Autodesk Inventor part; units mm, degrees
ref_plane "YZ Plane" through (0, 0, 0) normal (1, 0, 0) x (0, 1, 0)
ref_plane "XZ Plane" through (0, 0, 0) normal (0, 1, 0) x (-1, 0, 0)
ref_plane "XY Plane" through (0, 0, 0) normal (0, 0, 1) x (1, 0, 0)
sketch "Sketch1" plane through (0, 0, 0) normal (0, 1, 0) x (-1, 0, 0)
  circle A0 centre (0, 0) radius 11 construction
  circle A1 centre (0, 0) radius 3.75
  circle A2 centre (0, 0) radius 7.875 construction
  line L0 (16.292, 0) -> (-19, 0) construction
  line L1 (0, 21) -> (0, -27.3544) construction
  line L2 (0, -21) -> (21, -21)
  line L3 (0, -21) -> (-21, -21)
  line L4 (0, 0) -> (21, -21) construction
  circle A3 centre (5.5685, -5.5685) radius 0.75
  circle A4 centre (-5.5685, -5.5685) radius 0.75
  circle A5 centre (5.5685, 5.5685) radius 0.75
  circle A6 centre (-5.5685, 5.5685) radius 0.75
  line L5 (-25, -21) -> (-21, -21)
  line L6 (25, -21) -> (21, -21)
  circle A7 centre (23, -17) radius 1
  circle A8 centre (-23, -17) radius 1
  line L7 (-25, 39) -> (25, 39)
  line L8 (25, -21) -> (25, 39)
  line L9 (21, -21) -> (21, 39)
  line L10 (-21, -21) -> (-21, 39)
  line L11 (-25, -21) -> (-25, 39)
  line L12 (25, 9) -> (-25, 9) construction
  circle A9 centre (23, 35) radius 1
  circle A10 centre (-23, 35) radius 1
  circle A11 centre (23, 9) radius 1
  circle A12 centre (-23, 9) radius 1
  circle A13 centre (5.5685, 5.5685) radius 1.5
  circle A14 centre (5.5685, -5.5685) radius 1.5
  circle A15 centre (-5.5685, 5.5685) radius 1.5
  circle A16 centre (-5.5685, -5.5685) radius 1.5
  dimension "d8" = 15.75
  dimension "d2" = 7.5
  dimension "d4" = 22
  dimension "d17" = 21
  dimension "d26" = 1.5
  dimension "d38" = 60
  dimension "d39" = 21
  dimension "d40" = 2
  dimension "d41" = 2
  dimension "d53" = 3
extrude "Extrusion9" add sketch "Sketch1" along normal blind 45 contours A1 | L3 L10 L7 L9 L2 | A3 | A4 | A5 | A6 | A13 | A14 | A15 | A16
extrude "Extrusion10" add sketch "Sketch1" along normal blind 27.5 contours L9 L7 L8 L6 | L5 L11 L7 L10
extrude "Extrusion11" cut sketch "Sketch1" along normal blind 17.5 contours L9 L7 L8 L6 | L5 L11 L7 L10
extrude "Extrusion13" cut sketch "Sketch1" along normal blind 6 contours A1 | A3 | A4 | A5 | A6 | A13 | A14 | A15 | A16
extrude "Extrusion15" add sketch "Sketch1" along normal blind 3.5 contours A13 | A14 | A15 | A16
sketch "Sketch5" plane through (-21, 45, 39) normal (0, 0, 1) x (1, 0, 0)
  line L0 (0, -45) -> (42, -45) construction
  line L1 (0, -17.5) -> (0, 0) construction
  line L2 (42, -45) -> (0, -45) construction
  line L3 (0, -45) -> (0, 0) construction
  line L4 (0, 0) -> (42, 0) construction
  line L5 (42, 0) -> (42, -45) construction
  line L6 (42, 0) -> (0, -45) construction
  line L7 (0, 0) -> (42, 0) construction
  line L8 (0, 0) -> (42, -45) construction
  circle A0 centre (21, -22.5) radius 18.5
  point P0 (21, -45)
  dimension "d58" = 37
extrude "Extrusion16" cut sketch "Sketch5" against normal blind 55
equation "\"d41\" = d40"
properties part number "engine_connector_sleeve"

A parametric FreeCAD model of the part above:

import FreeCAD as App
import Part
import Sketcher
Q = App.Units.Quantity


def add_polygon(sketch, points):
    """Adds a closed chain of lines whose ends are joined by coincident constraints."""
    first, n = sketch.GeometryCount, len(points)
    for a, b in zip(points, points[1:] + points[:1]):
        sketch.addGeometry(Part.LineSegment(App.Vector(*a, 0), App.Vector(*b, 0)), False)
    for i in range(n):
        sketch.addConstraint(Sketcher.Constraint("Coincident", first + i, 2, first + (i + 1) % n, 1))

doc = App.newDocument("Part")
params = doc.addObject("Spreadsheet::Sheet", "Params")
for row, (alias, value) in enumerate([
    ("sketch1_height", "60 mm"),
    ("pad1_length", "45 mm"),
    ("sketch2_diameter", "2 mm"),
    ("sketch2_height", "60 mm"),
    ("pad2_length", "27.5 mm"),
    ("sketch3_diameter", "2 mm"),
    ("sketch3_height", "60 mm"),
    ("pocket1_length", "17.5 mm"),
    ("sketch4_diameter", "3 mm"),
    ("sketch4_diameter2", "7.5 mm"),
    ("pocket2_length", "6 mm"),
    ("sketch5_diameter", "3 mm"),
    ("sketch5_diameter2", "1.5 mm"),
    ("pad3_length", "3.5 mm"),
    ("sketch6_diameter", "37 mm"),
    ("pocket3_length", "55 mm"),
], start=1):
    params.set(f"A{row}", alias)
    params.set(f"B{row}", "=" + value)
    params.setAlias(f"B{row}", alias)

body = doc.addObject("PartDesign::Body", "Body")

# Sketch on XZ plane
sketch1 = doc.addObject("Sketcher::SketchObject", "Sketch")
body.addObject(sketch1)
sketch1.AttachmentSupport = (doc.XZ_Plane, [""])
sketch1.MapMode = "FlatFace"
add_polygon(sketch1, [(21, -21), (-21, -21), (-21, 39), (21, 39)])  # lines 0-3
sketch1.addConstraint([
    Sketcher.Constraint("Horizontal", 0),
    Sketcher.Constraint("Vertical", 1),
    Sketcher.Constraint("Horizontal", 2),
    Sketcher.Constraint("Vertical", 3),
    Sketcher.Constraint("DistanceY", 1, 1, 1, 2, Q("60 mm")),
    Sketcher.Constraint("DistanceX", 0, 2, -1, 1, Q("21 mm")),
    Sketcher.Constraint("DistanceY", 0, 2, -1, 1, Q("21 mm")),
    Sketcher.Constraint("DistanceX", -1, 1, 2, 2, Q("21 mm")),
])
sketch1.setExpression("Constraints[8]", "Params.sketch1_height")
pad1 = doc.addObject("PartDesign::Pad", "Pad")
body.addObject(pad1)
pad1.Profile = sketch1
pad1.setExpression("Length", "Params.pad1_length")
pad1.Reversed = True

# Sketch on XZ plane
sketch2 = doc.addObject("Sketcher::SketchObject", "Sketch001")
body.addObject(sketch2)
sketch2.AttachmentSupport = (doc.XZ_Plane, [""])
sketch2.MapMode = "FlatFace"
add_polygon(sketch2, [(-21, 39), (-21, -21), (-25, -21), (-25, 39)])  # lines 0-3
sketch2.addGeometry(Part.Circle(App.Vector(-23, -17, 0), App.Vector(0, 0, 1), 1), False)  # 4
sketch2.addGeometry(Part.Circle(App.Vector(-23, 9, 0), App.Vector(0, 0, 1), 1), False)  # 5
sketch2.addGeometry(Part.Circle(App.Vector(-23, 35, 0), App.Vector(0, 0, 1), 1), False)  # 6
add_polygon(sketch2, [(25, -21), (21, -21), (21, 39), (25, 39)])  # lines 7-10
sketch2.addGeometry(Part.Circle(App.Vector(23, -17, 0), App.Vector(0, 0, 1), 1), False)  # 11
sketch2.addGeometry(Part.Circle(App.Vector(23, 9, 0), App.Vector(0, 0, 1), 1), False)  # 12
sketch2.addGeometry(Part.Circle(App.Vector(23, 35, 0), App.Vector(0, 0, 1), 1), False)  # 13
sketch2.addConstraint([
    Sketcher.Constraint("Vertical", 0),
    Sketcher.Constraint("Horizontal", 1),
    Sketcher.Constraint("Vertical", 2),
    Sketcher.Constraint("Horizontal", 3),
    Sketcher.Constraint("Horizontal", 7),
    Sketcher.Constraint("Vertical", 8),
    Sketcher.Constraint("Horizontal", 9),
    Sketcher.Constraint("Vertical", 10),
    Sketcher.Constraint("Equal", 4, 5),
    Sketcher.Constraint("Equal", 5, 6),
    Sketcher.Constraint("Equal", 6, 11),
    Sketcher.Constraint("Equal", 11, 12),
    Sketcher.Constraint("Equal", 12, 13),
    Sketcher.Constraint("Symmetric", 4, 3, 11, 3, -2),
    Sketcher.Constraint("Symmetric", 5, 3, 12, 3, -2),
    Sketcher.Constraint("Symmetric", 6, 3, 13, 3, -2),
    Sketcher.Constraint("Symmetric", 0, 2, 7, 2, -2),
    Sketcher.Constraint("Symmetric", 2, 2, 9, 2, -2),
    Sketcher.Constraint("Vertical", 4, 3, 5, 3),
    Sketcher.Constraint("Vertical", 5, 3, 6, 3),
    Sketcher.Constraint("Diameter", 4, Q("2 mm")),
    Sketcher.Constraint("DistanceY", 0, 2, 0, 1, Q("60 mm")),
    Sketcher.Constraint("DistanceX", 0, 2, -1, 1, Q("21 mm")),
    Sketcher.Constraint("DistanceY", 0, 2, -1, 1, Q("21 mm")),
    Sketcher.Constraint("DistanceX", 4, 3, 0, 2, Q("2 mm")),
    Sketcher.Constraint("DistanceX", 1, 2, 4, 3, Q("2 mm")),
    Sketcher.Constraint("DistanceY", 4, 3, -1, 1, Q("17 mm")),
    Sketcher.Constraint("DistanceY", -1, 1, 5, 3, Q("9 mm")),
    Sketcher.Constraint("DistanceY", -1, 1, 6, 3, Q("35 mm")),
])
sketch2.setExpression("Constraints[28]", "Params.sketch2_diameter")
sketch2.setExpression("Constraints[29]", "Params.sketch2_height")
pad2 = doc.addObject("PartDesign::Pad", "Pad001")
body.addObject(pad2)
pad2.Profile = sketch2
pad2.setExpression("Length", "Params.pad2_length")
pad2.Reversed = True

# Sketch on XZ plane
sketch3 = doc.addObject("Sketcher::SketchObject", "Sketch002")
body.addObject(sketch3)
sketch3.AttachmentSupport = (doc.XZ_Plane, [""])
sketch3.MapMode = "FlatFace"
add_polygon(sketch3, [(-21, 39), (-21, -21), (-25, -21), (-25, 39)])  # lines 0-3
sketch3.addGeometry(Part.Circle(App.Vector(-23, -17, 0), App.Vector(0, 0, 1), 1), False)  # 4
sketch3.addGeometry(Part.Circle(App.Vector(-23, 9, 0), App.Vector(0, 0, 1), 1), False)  # 5
sketch3.addGeometry(Part.Circle(App.Vector(-23, 35, 0), App.Vector(0, 0, 1), 1), False)  # 6
add_polygon(sketch3, [(25, -21), (21, -21), (21, 39), (25, 39)])  # lines 7-10
sketch3.addGeometry(Part.Circle(App.Vector(23, -17, 0), App.Vector(0, 0, 1), 1), False)  # 11
sketch3.addGeometry(Part.Circle(App.Vector(23, 9, 0), App.Vector(0, 0, 1), 1), False)  # 12
sketch3.addGeometry(Part.Circle(App.Vector(23, 35, 0), App.Vector(0, 0, 1), 1), False)  # 13
sketch3.addConstraint([
    Sketcher.Constraint("Vertical", 0),
    Sketcher.Constraint("Horizontal", 1),
    Sketcher.Constraint("Vertical", 2),
    Sketcher.Constraint("Horizontal", 3),
    Sketcher.Constraint("Horizontal", 7),
    Sketcher.Constraint("Vertical", 8),
    Sketcher.Constraint("Horizontal", 9),
    Sketcher.Constraint("Vertical", 10),
    Sketcher.Constraint("Equal", 4, 5),
    Sketcher.Constraint("Equal", 5, 6),
    Sketcher.Constraint("Equal", 6, 11),
    Sketcher.Constraint("Equal", 11, 12),
    Sketcher.Constraint("Equal", 12, 13),
    Sketcher.Constraint("Symmetric", 4, 3, 11, 3, -2),
    Sketcher.Constraint("Symmetric", 5, 3, 12, 3, -2),
    Sketcher.Constraint("Symmetric", 6, 3, 13, 3, -2),
    Sketcher.Constraint("Symmetric", 0, 2, 7, 2, -2),
    Sketcher.Constraint("Symmetric", 2, 2, 9, 2, -2),
    Sketcher.Constraint("Vertical", 4, 3, 5, 3),
    Sketcher.Constraint("Vertical", 5, 3, 6, 3),
    Sketcher.Constraint("Diameter", 4, Q("2 mm")),
    Sketcher.Constraint("DistanceY", 0, 2, 0, 1, Q("60 mm")),
    Sketcher.Constraint("DistanceX", 0, 2, -1, 1, Q("21 mm")),
    Sketcher.Constraint("DistanceY", 0, 2, -1, 1, Q("21 mm")),
    Sketcher.Constraint("DistanceX", 4, 3, 0, 2, Q("2 mm")),
    Sketcher.Constraint("DistanceX", 1, 2, 4, 3, Q("2 mm")),
    Sketcher.Constraint("DistanceY", 4, 3, -1, 1, Q("17 mm")),
    Sketcher.Constraint("DistanceY", -1, 1, 5, 3, Q("9 mm")),
    Sketcher.Constraint("DistanceY", -1, 1, 6, 3, Q("35 mm")),
])
sketch3.setExpression("Constraints[28]", "Params.sketch3_diameter")
sketch3.setExpression("Constraints[29]", "Params.sketch3_height")
pocket1 = doc.addObject("PartDesign::Pocket", "Pocket")
body.addObject(pocket1)
pocket1.Profile = sketch3
pocket1.setExpression("Length", "Params.pocket1_length")

# Sketch on XZ plane
sketch4 = doc.addObject("Sketcher::SketchObject", "Sketch003")
body.addObject(sketch4)
sketch4.AttachmentSupport = (doc.XZ_Plane, [""])
sketch4.MapMode = "FlatFace"
sketch4.addGeometry([
    Part.Circle(App.Vector(0, 0, 0), App.Vector(0, 0, 1), 3.8),  # 0
    Part.Circle(App.Vector(-5.6, -5.6, 0), App.Vector(0, 0, 1), 1.5),  # 1
    Part.Circle(App.Vector(5.6, -5.6, 0), App.Vector(0, 0, 1), 1.5),  # 2
    Part.Circle(App.Vector(-5.6, 5.6, 0), App.Vector(0, 0, 1), 1.5),  # 3
    Part.Circle(App.Vector(5.6, 5.6, 0), App.Vector(0, 0, 1), 1.5),  # 4
], False)
sketch4.addConstraint([
    Sketcher.Constraint("Coincident", 0, 3, -1, 1),
    Sketcher.Constraint("Equal", 1, 2),
    Sketcher.Constraint("Equal", 2, 3),
    Sketcher.Constraint("Equal", 3, 4),
    Sketcher.Constraint("Symmetric", 2, 3, 3, 3, -1, 1),
    Sketcher.Constraint("Symmetric", 1, 3, 4, 3, -1, 1),
    Sketcher.Constraint("Symmetric", 1, 3, 2, 3, -2),
    Sketcher.Constraint("Diameter", 1, Q("3 mm")),
    Sketcher.Constraint("Diameter", 0, Q("7.5 mm")),
    Sketcher.Constraint("DistanceX", 1, 3, 2, 3, Q("11.137 mm")),
    Sketcher.Constraint("DistanceY", 1, 3, 3, 3, Q("11.137 mm")),
])
sketch4.setExpression("Constraints[7]", "Params.sketch4_diameter")
sketch4.setExpression("Constraints[8]", "Params.sketch4_diameter2")
pocket2 = doc.addObject("PartDesign::Pocket", "Pocket001")
body.addObject(pocket2)
pocket2.Profile = sketch4
pocket2.setExpression("Length", "Params.pocket2_length")

# Sketch on XZ plane
sketch5 = doc.addObject("Sketcher::SketchObject", "Sketch004")
body.addObject(sketch5)
sketch5.AttachmentSupport = (doc.XZ_Plane, [""])
sketch5.MapMode = "FlatFace"
sketch5.addGeometry([
    Part.Circle(App.Vector(-5.6, 5.6, 0), App.Vector(0, 0, 1), 1.5),  # 0
    Part.Circle(App.Vector(-5.6, 5.6, 0), App.Vector(0, 0, 1), 0.8),  # 1
    Part.Circle(App.Vector(-5.6, -5.6, 0), App.Vector(0, 0, 1), 1.5),  # 2
    Part.Circle(App.Vector(-5.6, -5.6, 0), App.Vector(0, 0, 1), 0.8),  # 3
    Part.Circle(App.Vector(5.6, 5.6, 0), App.Vector(0, 0, 1), 1.5),  # 4
    Part.Circle(App.Vector(5.6, 5.6, 0), App.Vector(0, 0, 1), 0.8),  # 5
    Part.Circle(App.Vector(5.6, -5.6, 0), App.Vector(0, 0, 1), 1.5),  # 6
    Part.Circle(App.Vector(5.6, -5.6, 0), App.Vector(0, 0, 1), 0.8),  # 7
], False)
sketch5.addConstraint([
    Sketcher.Constraint("Coincident", 1, 3, 0, 3),
    Sketcher.Constraint("Coincident", 3, 3, 2, 3),
    Sketcher.Constraint("Coincident", 5, 3, 4, 3),
    Sketcher.Constraint("Coincident", 7, 3, 6, 3),
    Sketcher.Constraint("Equal", 0, 2),
    Sketcher.Constraint("Equal", 1, 3),
    Sketcher.Constraint("Equal", 2, 4),
    Sketcher.Constraint("Equal", 3, 5),
    Sketcher.Constraint("Equal", 4, 6),
    Sketcher.Constraint("Equal", 5, 7),
    Sketcher.Constraint("Symmetric", 2, 3, 4, 3, -1, 1),
    Sketcher.Constraint("Symmetric", 0, 3, 6, 3, -1, 1),
    Sketcher.Constraint("Symmetric", 0, 3, 4, 3, -2),
    Sketcher.Constraint("Diameter", 0, Q("3 mm")),
    Sketcher.Constraint("Diameter", 1, Q("1.5 mm")),
    Sketcher.Constraint("DistanceY", 2, 3, 0, 3, Q("11.137 mm")),
    Sketcher.Constraint("DistanceX", 0, 3, 4, 3, Q("11.137 mm")),
])
sketch5.setExpression("Constraints[13]", "Params.sketch5_diameter")
sketch5.setExpression("Constraints[14]", "Params.sketch5_diameter2")
pad3 = doc.addObject("PartDesign::Pad", "Pad002")
body.addObject(pad3)
pad3.Profile = sketch5
pad3.setExpression("Length", "Params.pad3_length")
pad3.Reversed = True

# Sketch on XY plane
sketch6 = doc.addObject("Sketcher::SketchObject", "Sketch005")
body.addObject(sketch6)
sketch6.AttachmentSupport = (doc.XY_Plane, [""])
sketch6.MapMode = "FlatFace"
sketch6.AttachmentOffset = App.Placement(App.Vector(0, 0, 39), App.Rotation())
sketch6.addGeometry(Part.Circle(App.Vector(0, 22, 0), App.Vector(0, 0, 1), 18), False)
sketch6.addConstraint([
    Sketcher.Constraint("PointOnObject", 0, 3, -2),
    Sketcher.Constraint("Diameter", 0, Q("37 mm")),
    Sketcher.Constraint("DistanceY", -1, 1, 0, 3, Q("22.5 mm")),
])
sketch6.setExpression("Constraints[1]", "Params.sketch6_diameter")
pocket3 = doc.addObject("PartDesign::Pocket", "Pocket002")
body.addObject(pocket3)
pocket3.Profile = sketch6
pocket3.setExpression("Length", "Params.pocket3_length")

doc.recompute()
